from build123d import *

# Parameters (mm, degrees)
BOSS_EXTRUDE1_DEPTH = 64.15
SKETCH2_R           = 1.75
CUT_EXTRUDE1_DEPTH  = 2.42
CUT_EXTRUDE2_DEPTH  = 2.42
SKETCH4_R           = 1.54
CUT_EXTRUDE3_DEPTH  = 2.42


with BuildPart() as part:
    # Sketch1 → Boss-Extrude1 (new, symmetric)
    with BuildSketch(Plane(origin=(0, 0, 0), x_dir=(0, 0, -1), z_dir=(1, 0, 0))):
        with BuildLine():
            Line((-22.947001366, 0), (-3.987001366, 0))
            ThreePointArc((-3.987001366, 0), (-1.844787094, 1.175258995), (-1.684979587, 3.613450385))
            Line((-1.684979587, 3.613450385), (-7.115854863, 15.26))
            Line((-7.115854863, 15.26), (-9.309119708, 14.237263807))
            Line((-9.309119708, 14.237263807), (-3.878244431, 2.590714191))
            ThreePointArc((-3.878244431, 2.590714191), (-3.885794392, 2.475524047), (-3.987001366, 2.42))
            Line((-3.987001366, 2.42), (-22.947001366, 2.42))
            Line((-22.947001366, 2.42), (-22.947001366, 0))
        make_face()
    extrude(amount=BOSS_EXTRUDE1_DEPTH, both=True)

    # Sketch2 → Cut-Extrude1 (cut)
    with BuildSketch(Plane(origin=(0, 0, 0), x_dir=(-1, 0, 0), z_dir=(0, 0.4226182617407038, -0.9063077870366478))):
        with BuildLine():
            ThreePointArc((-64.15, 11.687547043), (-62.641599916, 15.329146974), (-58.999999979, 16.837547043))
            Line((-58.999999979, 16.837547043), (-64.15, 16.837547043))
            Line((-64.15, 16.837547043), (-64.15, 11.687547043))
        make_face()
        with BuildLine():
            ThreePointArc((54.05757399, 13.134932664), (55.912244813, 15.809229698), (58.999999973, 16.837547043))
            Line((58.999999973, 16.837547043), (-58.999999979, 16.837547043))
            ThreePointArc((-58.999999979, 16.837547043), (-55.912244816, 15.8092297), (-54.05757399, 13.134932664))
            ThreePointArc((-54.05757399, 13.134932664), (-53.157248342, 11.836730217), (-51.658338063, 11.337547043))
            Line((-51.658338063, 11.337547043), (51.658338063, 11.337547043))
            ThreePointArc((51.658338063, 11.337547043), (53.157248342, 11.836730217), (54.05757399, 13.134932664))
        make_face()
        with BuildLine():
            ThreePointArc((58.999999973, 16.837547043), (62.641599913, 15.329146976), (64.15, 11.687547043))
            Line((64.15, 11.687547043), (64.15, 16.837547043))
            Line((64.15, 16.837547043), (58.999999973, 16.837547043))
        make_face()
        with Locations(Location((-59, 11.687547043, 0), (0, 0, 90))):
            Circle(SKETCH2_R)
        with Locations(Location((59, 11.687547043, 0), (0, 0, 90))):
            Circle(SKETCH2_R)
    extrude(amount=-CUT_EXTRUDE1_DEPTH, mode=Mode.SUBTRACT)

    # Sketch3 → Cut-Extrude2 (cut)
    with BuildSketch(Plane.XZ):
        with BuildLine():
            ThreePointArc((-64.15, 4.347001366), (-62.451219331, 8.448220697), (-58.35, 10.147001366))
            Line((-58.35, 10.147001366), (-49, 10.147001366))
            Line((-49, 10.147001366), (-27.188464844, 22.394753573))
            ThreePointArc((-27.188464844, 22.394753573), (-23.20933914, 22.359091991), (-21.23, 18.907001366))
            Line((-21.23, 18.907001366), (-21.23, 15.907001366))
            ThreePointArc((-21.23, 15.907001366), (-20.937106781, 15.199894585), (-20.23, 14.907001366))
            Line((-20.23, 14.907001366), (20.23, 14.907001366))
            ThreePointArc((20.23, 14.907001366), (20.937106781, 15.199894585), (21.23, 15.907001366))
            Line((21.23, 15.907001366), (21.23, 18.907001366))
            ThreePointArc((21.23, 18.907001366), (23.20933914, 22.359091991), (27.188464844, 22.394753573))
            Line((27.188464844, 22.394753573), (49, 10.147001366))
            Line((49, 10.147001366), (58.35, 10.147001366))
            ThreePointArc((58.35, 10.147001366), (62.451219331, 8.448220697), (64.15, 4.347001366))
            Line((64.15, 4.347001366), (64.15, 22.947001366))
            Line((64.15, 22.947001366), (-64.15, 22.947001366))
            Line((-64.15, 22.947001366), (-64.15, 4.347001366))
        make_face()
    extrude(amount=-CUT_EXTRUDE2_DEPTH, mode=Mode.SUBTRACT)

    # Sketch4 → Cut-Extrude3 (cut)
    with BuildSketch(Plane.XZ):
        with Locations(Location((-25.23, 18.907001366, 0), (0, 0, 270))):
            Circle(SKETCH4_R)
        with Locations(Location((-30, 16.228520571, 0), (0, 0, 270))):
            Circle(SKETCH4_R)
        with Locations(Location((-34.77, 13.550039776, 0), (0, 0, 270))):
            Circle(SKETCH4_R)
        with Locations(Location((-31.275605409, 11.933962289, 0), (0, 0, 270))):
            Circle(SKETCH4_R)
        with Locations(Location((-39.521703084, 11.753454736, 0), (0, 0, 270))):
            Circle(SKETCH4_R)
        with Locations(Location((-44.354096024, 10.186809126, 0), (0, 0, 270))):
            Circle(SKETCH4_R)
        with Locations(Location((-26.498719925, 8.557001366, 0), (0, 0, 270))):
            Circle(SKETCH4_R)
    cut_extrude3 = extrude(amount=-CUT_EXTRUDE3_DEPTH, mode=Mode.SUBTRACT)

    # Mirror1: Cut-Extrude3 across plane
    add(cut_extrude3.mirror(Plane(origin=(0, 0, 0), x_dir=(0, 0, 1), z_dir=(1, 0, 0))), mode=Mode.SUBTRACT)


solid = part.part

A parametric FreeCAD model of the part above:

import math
import FreeCAD as App
import Part
import Sketcher
from FreeCAD import Vector
Q = App.Units.Quantity

doc = App.newDocument("Part")
body = doc.addObject("PartDesign::Body", "Body")

sketch1 = body.newObject("Sketcher::SketchObject", "Sketch")
sketch1.AttachmentSupport = (doc.getObject("YZ_Plane"), [""])
sketch1.MapMode = "FlatFace"
sketch1.addGeometry(Part.LineSegment(Vector(0, 22.95, 0), Vector(0, 3.99, 0)), False)
sketch1.addGeometry(Part.ArcOfCircle(Part.Circle(Vector(2.54, 3.99, 0), Vector(0, 0, 1), 2.54), math.radians(-180), math.radians(-65)), False)
sketch1.addGeometry(Part.LineSegment(Vector(3.61, 1.68, 0), Vector(15.26, 7.12, 0)), False)
sketch1.addGeometry(Part.LineSegment(Vector(15.26, 7.12, 0), Vector(14.24, 9.31, 0)), False)
sketch1.addGeometry(Part.LineSegment(Vector(14.24, 9.31, 0), Vector(2.59, 3.88, 0)), False)
sketch1.addGeometry(Part.ArcOfCircle(Part.Circle(Vector(2.54, 3.99, 0), Vector(0, 0, 1), 0.12), math.radians(180), math.radians(295)), False)
sketch1.addGeometry(Part.LineSegment(Vector(2.42, 3.99, 0), Vector(2.42, 22.95, 0)), False)
sketch1.addGeometry(Part.LineSegment(Vector(2.42, 22.95, 0), Vector(0, 22.95, 0)), False)
sketch1.addConstraint(Sketcher.Constraint("Tangent", 0, 2, 1, 1))
sketch1.addConstraint(Sketcher.Constraint("Tangent", 1, 2, 2, 1))
sketch1.addConstraint(Sketcher.Constraint("Coincident", 2, 2, 3, 1))
sketch1.addConstraint(Sketcher.Constraint("Coincident", 3, 2, 4, 1))
sketch1.addConstraint(Sketcher.Constraint("Tangent", 4, 2, 5, 2))
sketch1.addConstraint(Sketcher.Constraint("Tangent", 5, 1, 6, 1))
sketch1.addConstraint(Sketcher.Constraint("Coincident", 6, 2, 7, 1))
sketch1.addConstraint(Sketcher.Constraint("Coincident", 7, 2, 0, 1))
sketch1.addConstraint(Sketcher.Constraint("Vertical", 0))
sketch1.addConstraint(Sketcher.Constraint("Vertical", 6))
sketch1.addConstraint(Sketcher.Constraint("Horizontal", 7))
sketch1.addConstraint(Sketcher.Constraint("Coincident", 5, 3, 1, 3))
sketch1.addConstraint(Sketcher.Constraint("PointOnObject", 0, 2, -2))
sketch1.addConstraint(Sketcher.Constraint("Perpendicular", 2, 3))
sketch1.addConstraint(Sketcher.Constraint("Perpendicular", 3, 4))
sketch1.addConstraint(Sketcher.Constraint("Angle", 2, Q("25 deg")))
sketch1.addConstraint(Sketcher.Constraint("Radius", 1, Q("2.54 mm")))
sketch1.addConstraint(Sketcher.Constraint("Radius", 5, Q("0.12 mm")))
sketch1.addConstraint(Sketcher.Constraint("DistanceY", 0, 2, 0, 1, Q("18.96 mm")))
sketch1.addConstraint(Sketcher.Constraint("DistanceX", -1, 1, 2, 2, Q("15.26 mm")))
sketch1.addConstraint(Sketcher.Constraint("DistanceY", -1, 1, 1, 3, Q("3.987001 mm")))
pad1 = body.newObject("PartDesign::Pad", "Pad")
pad1.Profile = sketch1
pad1.Length = 128.3
pad1.Midplane = True

sketch2 = body.newObject("Sketcher::SketchObject", "Sketch001")
sketch2.Placement = App.Placement(Vector(0, 0, 0), App.Rotation(Vector(-1, 0, 0), Vector(0, 0.906307787, 0.422618262), Vector(0, 0.422618262, -0.906307787), "ZXY"))
sketch2.addGeometry(Part.ArcOfCircle(Part.Circle(Vector(-59, 11.7, 0), Vector(0, 0, 1), 5.1), math.radians(90), math.radians(180)), False)
sketch2.addGeometry(Part.LineSegment(Vector(-59, 16.8, 0), Vector(-64.2, 16.8, 0)), False)
sketch2.addGeometry(Part.LineSegment(Vector(-64.2, 16.8, 0), Vector(-64.2, 11.7, 0)), False)
sketch2.addGeometry(Part.ArcOfCircle(Part.Circle(Vector(59, 11.7, 0), Vector(0, 0, 1), 5.1), math.radians(90), math.radians(164)), False)
sketch2.addGeometry(Part.LineSegment(Vector(59, 16.8, 0), Vector(-59, 16.8, 0)), False)
sketch2.addGeometry(Part.ArcOfCircle(Part.Circle(Vector(-59, 11.7, 0), Vector(0, 0, 1), 5.2), math.radians(16), math.radians(90)), False)
sketch2.addGeometry(Part.ArcOfCircle(Part.Circle(Vector(-51.7, 13.8, 0), Vector(0, 0, 1), 2.5), math.radians(-164), math.radians(-90)), False)
sketch2.addGeometry(Part.LineSegment(Vector(-51.7, 11.3, 0), Vector(51.7, 11.3, 0)), False)
sketch2.addGeometry(Part.ArcOfCircle(Part.Circle(Vector(51.7, 13.8, 0), Vector(0, 0, 1), 2.5), math.radians(-90), math.radians(-16)), False)
sketch2.addGeometry(Part.ArcOfCircle(Part.Circle(Vector(59, 11.7, 0), Vector(0, 0, 1), 5.2), math.radians(0), math.radians(90)), False)
sketch2.addGeometry(Part.LineSegment(Vector(64.2, 11.7, 0), Vector(64.2, 16.8, 0)), False)
sketch2.addGeometry(Part.LineSegment(Vector(64.2, 16.8, 0), Vector(59, 16.8, 0)), False)
sketch2.addGeometry(Part.Circle(Vector(-59, 11.7, 0), Vector(0, 0, 1), 1.8), False)
sketch2.addGeometry(Part.Circle(Vector(59, 11.7, 0), Vector(0, 0, 1), 1.8), False)
sketch2.addConstraint(Sketcher.Constraint("Tangent", 0, 1, 1, 1))
sketch2.addConstraint(Sketcher.Constraint("Coincident", 1, 2, 2, 1))
sketch2.addConstraint(Sketcher.Constraint("Tangent", 2, 2, 0, 2))
sketch2.addConstraint(Sketcher.Constraint("Tangent", 3, 1, 4, 1))
sketch2.addConstraint(Sketcher.Constraint("Tangent", 4, 2, 5, 2))
sketch2.addConstraint(Sketcher.Constraint("Tangent", 5, 1, 6, 1))
sketch2.addConstraint(Sketcher.Constraint("Tangent", 6, 2, 7, 1))
sketch2.addConstraint(Sketcher.Constraint("Tangent", 7, 2, 8, 1))
sketch2.addConstraint(Sketcher.Constraint("Tangent", 8, 2, 3, 2))
sketch2.addConstraint(Sketcher.Constraint("Tangent", 9, 1, 10, 1))
sketch2.addConstraint(Sketcher.Constraint("Coincident", 10, 2, 11, 1))
sketch2.addConstraint(Sketcher.Constraint("Tangent", 11, 2, 9, 2))
sketch2.addConstraint(Sketcher.Constraint("Horizontal", 1))
sketch2.addConstraint(Sketcher.Constraint("Vertical", 2))
sketch2.addConstraint(Sketcher.Constraint("Horizontal", 4))
sketch2.addConstraint(Sketcher.Constraint("Horizontal", 7))
sketch2.addConstraint(Sketcher.Constraint("Vertical", 10))
sketch2.addConstraint(Sketcher.Constraint("Horizontal", 11))
sketch2.addConstraint(Sketcher.Constraint("Coincident", 5, 3, 0, 3))
sketch2.addConstraint(Sketcher.Constraint("Coincident", 9, 3, 3, 3))
sketch2.addConstraint(Sketcher.Constraint("Coincident", 12, 3, 0, 3))
sketch2.addConstraint(Sketcher.Constraint("Coincident", 13, 3, 3, 3))
sketch2.addConstraint(Sketcher.Constraint("Equal", 0, 3))
sketch2.addConstraint(Sketcher.Constraint("Equal", 3, 5))
sketch2.addConstraint(Sketcher.Constraint("Equal", 6, 8))
sketch2.addConstraint(Sketcher.Constraint("Equal", 5, 9))
sketch2.addConstraint(Sketcher.Constraint("Equal", 12, 13))
sketch2.addConstraint(Sketcher.Constraint("Diameter", 12, Q("3.5 mm")))
sketch2.addConstraint(Sketcher.Constraint("Radius", 6, Q("2.5 mm")))
sketch2.addConstraint(Sketcher.Constraint("DistanceX", 4, 2, 4, 1, Q("118 mm")))
sketch2.addConstraint(Sketcher.Constraint("Radius", 0, Q("5.15 mm")))
sketch2.addConstraint(Sketcher.Constraint("DistanceX", 0, 3, -1, 1, Q("59 mm")))
sketch2.addConstraint(Sketcher.Constraint("DistanceY", 6, 3, 0, 1, Q("3 mm")))
sketch2.addConstraint(Sketcher.Constraint("DistanceY", -1, 1, 0, 3, Q("11.687547 mm")))
pocket1 = body.newObject("PartDesign::Pocket", "Pocket")
pocket1.Profile = sketch2
pocket1.Length = 2.42

sketch3 = body.newObject("Sketcher::SketchObject", "Sketch002")
sketch3.AttachmentSupport = (doc.getObject("XZ_Plane"), [""])
sketch3.MapMode = "FlatFace"
sketch3.addGeometry(Part.ArcOfCircle(Part.Circle(Vector(-58.4, 4.3, 0), Vector(0, 0, 1), 5.8), math.radians(90), math.radians(180)), False)
sketch3.addGeometry(Part.LineSegment(Vector(-58.4, 10.1, 0), Vector(-49, 10.1, 0)), False)
sketch3.addGeometry(Part.LineSegment(Vector(-49, 10.1, 0), Vector(-27.2, 22.4, 0)), False)
sketch3.addGeometry(Part.ArcOfCircle(Part.Circle(Vector(-25.2, 18.9, 0), Vector(0, 0, 1), 4), math.radians(0), math.radians(119)), False)
sketch3.addGeometry(Part.LineSegment(Vector(-21.2, 18.9, 0), Vector(-21.2, 15.9, 0)), False)
sketch3.addGeometry(Part.ArcOfCircle(Part.Circle(Vector(-20.2, 15.9, 0), Vector(0, 0, 1), 1), math.radians(-180), math.radians(-90)), False)
sketch3.addGeometry(Part.LineSegment(Vector(-20.2, 14.9, 0), Vector(20.2, 14.9, 0)), False)
sketch3.addGeometry(Part.ArcOfCircle(Part.Circle(Vector(20.2, 15.9, 0), Vector(0, 0, 1), 1), math.radians(-90), math.radians(0)), False)
sketch3.addGeometry(Part.LineSegment(Vector(21.2, 15.9, 0), Vector(21.2, 18.9, 0)), False)
sketch3.addGeometry(Part.ArcOfCircle(Part.Circle(Vector(25.2, 18.9, 0), Vector(0, 0, 1), 4), math.radians(61), math.radians(180)), False)
sketch3.addGeometry(Part.LineSegment(Vector(27.2, 22.4, 0), Vector(49, 10.1, 0)), False)
sketch3.addGeometry(Part.LineSegment(Vector(49, 10.1, 0), Vector(58.4, 10.1, 0)), False)
sketch3.addGeometry(Part.ArcOfCircle(Part.Circle(Vector(58.4, 4.3, 0), Vector(0, 0, 1), 5.8), math.radians(0), math.radians(90)), False)
sketch3.addGeometry(Part.LineSegment(Vector(64.2, 4.3, 0), Vector(64.2, 22.9, 0)), False)
sketch3.addGeometry(Part.LineSegment(Vector(64.2, 22.9, 0), Vector(-64.2, 22.9, 0)), False)
sketch3.addGeometry(Part.LineSegment(Vector(-64.2, 22.9, 0), Vector(-64.2, 4.3, 0)), False)
sketch3.addConstraint(Sketcher.Constraint("Tangent", 0, 1, 1, 1))
sketch3.addConstraint(Sketcher.Constraint("Coincident", 1, 2, 2, 1))
sketch3.addConstraint(Sketcher.Constraint("Tangent", 2, 2, 3, 2))
sketch3.addConstraint(Sketcher.Constraint("Tangent", 3, 1, 4, 1))
sketch3.addConstraint(Sketcher.Constraint("Tangent", 4, 2, 5, 1))
sketch3.addConstraint(Sketcher.Constraint("Tangent", 5, 2, 6, 1))
sketch3.addConstraint(Sketcher.Constraint("Tangent", 6, 2, 7, 1))
sketch3.addConstraint(Sketcher.Constraint("Tangent", 7, 2, 8, 1))
sketch3.addConstraint(Sketcher.Constraint("Tangent", 8, 2, 9, 2))
sketch3.addConstraint(Sketcher.Constraint("Tangent", 9, 1, 10, 1))
sketch3.addConstraint(Sketcher.Constraint("Coincident", 10, 2, 11, 1))
sketch3.addConstraint(Sketcher.Constraint("Tangent", 11, 2, 12, 2))
sketch3.addConstraint(Sketcher.Constraint("Tangent", 12, 1, 13, 1))
sketch3.addConstraint(Sketcher.Constraint("Coincident", 13, 2, 14, 1))
sketch3.addConstraint(Sketcher.Constraint("Coincident", 14, 2, 15, 1))
sketch3.addConstraint(Sketcher.Constraint("Tangent", 15, 2, 0, 2))
sketch3.addConstraint(Sketcher.Constraint("Horizontal", 1))
sketch3.addConstraint(Sketcher.Constraint("Vertical", 4))
sketch3.addConstraint(Sketcher.Constraint("Horizontal", 6))
sketch3.addConstraint(Sketcher.Constraint("Vertical", 8))
sketch3.addConstraint(Sketcher.Constraint("Horizontal", 11))
sketch3.addConstraint(Sketcher.Constraint("Vertical", 13))
sketch3.addConstraint(Sketcher.Constraint("Horizontal", 14))
sketch3.addConstraint(Sketcher.Constraint("Vertical", 15))
sketch3.addConstraint(Sketcher.Constraint("Equal", 5, 7))
sketch3.addConstraint(Sketcher.Constraint("Equal", 3, 9))
sketch3.addConstraint(Sketcher.Constraint("Equal", 0, 12))
sketch3.addConstraint(Sketcher.Constraint("Symmetric", 3, 3, 9, 3, -2))
sketch3.addConstraint(Sketcher.Constraint("Symmetric", 0, 3, 12, 3, -2))
sketch3.addConstraint(Sketcher.Constraint("Horizontal", 2, 2, 9, 1))
sketch3.addConstraint(Sketcher.Constraint("Radius", 3, Q("4 mm")))
sketch3.addConstraint(Sketcher.Constraint("Radius", 5, Q("1 mm")))
sketch3.addConstraint(Sketcher.Constraint("Radius", 0, Q("5.8 mm")))
sketch3.addConstraint(Sketcher.Constraint("DistanceY", 4, 2, 4, 1, Q("3 mm")))
sketch3.addConstraint(Sketcher.Constraint("DistanceX", 14, 2, 14, 1, Q("128.3 mm")))
sketch3.addConstraint(Sketcher.Constraint("DistanceY", 13, 1, 13, 2, Q("18.6 mm")))
sketch3.addConstraint(Sketcher.Constraint("DistanceX", 1, 2, -1, 1, Q("49 mm")))
sketch3.addConstraint(Sketcher.Constraint("DistanceX", 6, 1, 6, 2, Q("40.46 mm")))
sketch3.addConstraint(Sketcher.Constraint("DistanceY", 0, 3, 3, 3, Q("14.56 mm")))
sketch3.addConstraint(Sketcher.Constraint("DistanceY", -1, 1, 0, 3, Q("4.347001 mm")))
pocket2 = body.newObject("PartDesign::Pocket", "Pocket001")
pocket2.Profile = sketch3
pocket2.Length = 2.42

sketch4 = body.newObject("Sketcher::SketchObject", "Sketch003")
sketch4.AttachmentSupport = (doc.getObject("XZ_Plane"), [""])
sketch4.MapMode = "FlatFace"
sketch4.addGeometry(Part.Circle(Vector(-25.2, 18.9, 0), Vector(0, 0, 1), 1.5), False)
sketch4.addGeometry(Part.Circle(Vector(-30, 16.2, 0), Vector(0, 0, 1), 1.5), False)
sketch4.addGeometry(Part.Circle(Vector(-34.8, 13.6, 0), Vector(0, 0, 1), 1.5), False)
sketch4.addGeometry(Part.Circle(Vector(-31.3, 11.9, 0), Vector(0, 0, 1), 1.5), False)
sketch4.addGeometry(Part.Circle(Vector(-39.5, 11.8, 0), Vector(0, 0, 1), 1.5), False)
sketch4.addGeometry(Part.Circle(Vector(-44.4, 10.2, 0), Vector(0, 0, 1), 1.5), False)
sketch4.addGeometry(Part.Circle(Vector(-26.5, 8.6, 0), Vector(0, 0, 1), 1.5), False)
sketch4.addConstraint(Sketcher.Constraint("Equal", 0, 1))
sketch4.addConstraint(Sketcher.Constraint("Equal", 1, 2))
sketch4.addConstraint(Sketcher.Constraint("Equal", 2, 3))
sketch4.addConstraint(Sketcher.Constraint("Equal", 3, 4))
sketch4.addConstraint(Sketcher.Constraint("Equal", 4, 5))
sketch4.addConstraint(Sketcher.Constraint("Equal", 5, 6))
sketch4.addConstraint(Sketcher.Constraint("Diameter", 0, Q("3.08 mm")))
sketch4.addConstraint(Sketcher.Constraint("DistanceX", 1, 3, -1, 1, Q("30 mm")))
sketch4.addConstraint(Sketcher.Constraint("DistanceX", 0, 3, -1, 1, Q("25.23 mm")))
sketch4.addConstraint(Sketcher.Constraint("DistanceX", 2, 3, -1, 1, Q("34.77 mm")))
sketch4.addConstraint(Sketcher.Constraint("DistanceY", 6, 3, 0, 3, Q("10.35 mm")))
sketch4.addConstraint(Sketcher.Constraint("DistanceY", -1, 1, 0, 3, Q("18.907001 mm")))
sketch4.addConstraint(Sketcher.Constraint("DistanceY", -1, 1, 1, 3, Q("16.228521 mm")))
sketch4.addConstraint(Sketcher.Constraint("DistanceY", -1, 1, 2, 3, Q("13.55004 mm")))
sketch4.addConstraint(Sketcher.Constraint("DistanceY", -1, 1, 5, 3, Q("10.186809 mm")))
sketch4.addConstraint(Sketcher.Constraint("DistanceX", 6, 3, -1, 1, Q("26.49872 mm")))
sketch4.addConstraint(Sketcher.Constraint("DistanceY", 3, 3, 1, 3, Q("4.294558 mm")))
sketch4.addConstraint(Sketcher.Constraint("DistanceX", 5, 3, 3, 3, Q("13.078491 mm")))
sketch4.addConstraint(Sketcher.Constraint("DistanceX", 3, 3, -1, 1, Q("31.275605 mm")))
sketch4.addConstraint(Sketcher.Constraint("DistanceX", 4, 3, -1, 1, Q("39.521703 mm")))
sketch4.addConstraint(Sketcher.Constraint("DistanceY", -1, 1, 4, 3, Q("11.753455 mm")))
pocket3 = body.newObject("PartDesign::Pocket", "Pocket002")
pocket3.Profile = sketch4
pocket3.Length = 2.42
doc.recompute()

mirrored = body.newObject("PartDesign::Mirrored", "Mirrored")
mirrored.Originals = [pocket3]
mirrored.MirrorPlane = (doc.getObject("YZ_Plane"), [""])
body.Tip = mirrored

doc.recompute()
